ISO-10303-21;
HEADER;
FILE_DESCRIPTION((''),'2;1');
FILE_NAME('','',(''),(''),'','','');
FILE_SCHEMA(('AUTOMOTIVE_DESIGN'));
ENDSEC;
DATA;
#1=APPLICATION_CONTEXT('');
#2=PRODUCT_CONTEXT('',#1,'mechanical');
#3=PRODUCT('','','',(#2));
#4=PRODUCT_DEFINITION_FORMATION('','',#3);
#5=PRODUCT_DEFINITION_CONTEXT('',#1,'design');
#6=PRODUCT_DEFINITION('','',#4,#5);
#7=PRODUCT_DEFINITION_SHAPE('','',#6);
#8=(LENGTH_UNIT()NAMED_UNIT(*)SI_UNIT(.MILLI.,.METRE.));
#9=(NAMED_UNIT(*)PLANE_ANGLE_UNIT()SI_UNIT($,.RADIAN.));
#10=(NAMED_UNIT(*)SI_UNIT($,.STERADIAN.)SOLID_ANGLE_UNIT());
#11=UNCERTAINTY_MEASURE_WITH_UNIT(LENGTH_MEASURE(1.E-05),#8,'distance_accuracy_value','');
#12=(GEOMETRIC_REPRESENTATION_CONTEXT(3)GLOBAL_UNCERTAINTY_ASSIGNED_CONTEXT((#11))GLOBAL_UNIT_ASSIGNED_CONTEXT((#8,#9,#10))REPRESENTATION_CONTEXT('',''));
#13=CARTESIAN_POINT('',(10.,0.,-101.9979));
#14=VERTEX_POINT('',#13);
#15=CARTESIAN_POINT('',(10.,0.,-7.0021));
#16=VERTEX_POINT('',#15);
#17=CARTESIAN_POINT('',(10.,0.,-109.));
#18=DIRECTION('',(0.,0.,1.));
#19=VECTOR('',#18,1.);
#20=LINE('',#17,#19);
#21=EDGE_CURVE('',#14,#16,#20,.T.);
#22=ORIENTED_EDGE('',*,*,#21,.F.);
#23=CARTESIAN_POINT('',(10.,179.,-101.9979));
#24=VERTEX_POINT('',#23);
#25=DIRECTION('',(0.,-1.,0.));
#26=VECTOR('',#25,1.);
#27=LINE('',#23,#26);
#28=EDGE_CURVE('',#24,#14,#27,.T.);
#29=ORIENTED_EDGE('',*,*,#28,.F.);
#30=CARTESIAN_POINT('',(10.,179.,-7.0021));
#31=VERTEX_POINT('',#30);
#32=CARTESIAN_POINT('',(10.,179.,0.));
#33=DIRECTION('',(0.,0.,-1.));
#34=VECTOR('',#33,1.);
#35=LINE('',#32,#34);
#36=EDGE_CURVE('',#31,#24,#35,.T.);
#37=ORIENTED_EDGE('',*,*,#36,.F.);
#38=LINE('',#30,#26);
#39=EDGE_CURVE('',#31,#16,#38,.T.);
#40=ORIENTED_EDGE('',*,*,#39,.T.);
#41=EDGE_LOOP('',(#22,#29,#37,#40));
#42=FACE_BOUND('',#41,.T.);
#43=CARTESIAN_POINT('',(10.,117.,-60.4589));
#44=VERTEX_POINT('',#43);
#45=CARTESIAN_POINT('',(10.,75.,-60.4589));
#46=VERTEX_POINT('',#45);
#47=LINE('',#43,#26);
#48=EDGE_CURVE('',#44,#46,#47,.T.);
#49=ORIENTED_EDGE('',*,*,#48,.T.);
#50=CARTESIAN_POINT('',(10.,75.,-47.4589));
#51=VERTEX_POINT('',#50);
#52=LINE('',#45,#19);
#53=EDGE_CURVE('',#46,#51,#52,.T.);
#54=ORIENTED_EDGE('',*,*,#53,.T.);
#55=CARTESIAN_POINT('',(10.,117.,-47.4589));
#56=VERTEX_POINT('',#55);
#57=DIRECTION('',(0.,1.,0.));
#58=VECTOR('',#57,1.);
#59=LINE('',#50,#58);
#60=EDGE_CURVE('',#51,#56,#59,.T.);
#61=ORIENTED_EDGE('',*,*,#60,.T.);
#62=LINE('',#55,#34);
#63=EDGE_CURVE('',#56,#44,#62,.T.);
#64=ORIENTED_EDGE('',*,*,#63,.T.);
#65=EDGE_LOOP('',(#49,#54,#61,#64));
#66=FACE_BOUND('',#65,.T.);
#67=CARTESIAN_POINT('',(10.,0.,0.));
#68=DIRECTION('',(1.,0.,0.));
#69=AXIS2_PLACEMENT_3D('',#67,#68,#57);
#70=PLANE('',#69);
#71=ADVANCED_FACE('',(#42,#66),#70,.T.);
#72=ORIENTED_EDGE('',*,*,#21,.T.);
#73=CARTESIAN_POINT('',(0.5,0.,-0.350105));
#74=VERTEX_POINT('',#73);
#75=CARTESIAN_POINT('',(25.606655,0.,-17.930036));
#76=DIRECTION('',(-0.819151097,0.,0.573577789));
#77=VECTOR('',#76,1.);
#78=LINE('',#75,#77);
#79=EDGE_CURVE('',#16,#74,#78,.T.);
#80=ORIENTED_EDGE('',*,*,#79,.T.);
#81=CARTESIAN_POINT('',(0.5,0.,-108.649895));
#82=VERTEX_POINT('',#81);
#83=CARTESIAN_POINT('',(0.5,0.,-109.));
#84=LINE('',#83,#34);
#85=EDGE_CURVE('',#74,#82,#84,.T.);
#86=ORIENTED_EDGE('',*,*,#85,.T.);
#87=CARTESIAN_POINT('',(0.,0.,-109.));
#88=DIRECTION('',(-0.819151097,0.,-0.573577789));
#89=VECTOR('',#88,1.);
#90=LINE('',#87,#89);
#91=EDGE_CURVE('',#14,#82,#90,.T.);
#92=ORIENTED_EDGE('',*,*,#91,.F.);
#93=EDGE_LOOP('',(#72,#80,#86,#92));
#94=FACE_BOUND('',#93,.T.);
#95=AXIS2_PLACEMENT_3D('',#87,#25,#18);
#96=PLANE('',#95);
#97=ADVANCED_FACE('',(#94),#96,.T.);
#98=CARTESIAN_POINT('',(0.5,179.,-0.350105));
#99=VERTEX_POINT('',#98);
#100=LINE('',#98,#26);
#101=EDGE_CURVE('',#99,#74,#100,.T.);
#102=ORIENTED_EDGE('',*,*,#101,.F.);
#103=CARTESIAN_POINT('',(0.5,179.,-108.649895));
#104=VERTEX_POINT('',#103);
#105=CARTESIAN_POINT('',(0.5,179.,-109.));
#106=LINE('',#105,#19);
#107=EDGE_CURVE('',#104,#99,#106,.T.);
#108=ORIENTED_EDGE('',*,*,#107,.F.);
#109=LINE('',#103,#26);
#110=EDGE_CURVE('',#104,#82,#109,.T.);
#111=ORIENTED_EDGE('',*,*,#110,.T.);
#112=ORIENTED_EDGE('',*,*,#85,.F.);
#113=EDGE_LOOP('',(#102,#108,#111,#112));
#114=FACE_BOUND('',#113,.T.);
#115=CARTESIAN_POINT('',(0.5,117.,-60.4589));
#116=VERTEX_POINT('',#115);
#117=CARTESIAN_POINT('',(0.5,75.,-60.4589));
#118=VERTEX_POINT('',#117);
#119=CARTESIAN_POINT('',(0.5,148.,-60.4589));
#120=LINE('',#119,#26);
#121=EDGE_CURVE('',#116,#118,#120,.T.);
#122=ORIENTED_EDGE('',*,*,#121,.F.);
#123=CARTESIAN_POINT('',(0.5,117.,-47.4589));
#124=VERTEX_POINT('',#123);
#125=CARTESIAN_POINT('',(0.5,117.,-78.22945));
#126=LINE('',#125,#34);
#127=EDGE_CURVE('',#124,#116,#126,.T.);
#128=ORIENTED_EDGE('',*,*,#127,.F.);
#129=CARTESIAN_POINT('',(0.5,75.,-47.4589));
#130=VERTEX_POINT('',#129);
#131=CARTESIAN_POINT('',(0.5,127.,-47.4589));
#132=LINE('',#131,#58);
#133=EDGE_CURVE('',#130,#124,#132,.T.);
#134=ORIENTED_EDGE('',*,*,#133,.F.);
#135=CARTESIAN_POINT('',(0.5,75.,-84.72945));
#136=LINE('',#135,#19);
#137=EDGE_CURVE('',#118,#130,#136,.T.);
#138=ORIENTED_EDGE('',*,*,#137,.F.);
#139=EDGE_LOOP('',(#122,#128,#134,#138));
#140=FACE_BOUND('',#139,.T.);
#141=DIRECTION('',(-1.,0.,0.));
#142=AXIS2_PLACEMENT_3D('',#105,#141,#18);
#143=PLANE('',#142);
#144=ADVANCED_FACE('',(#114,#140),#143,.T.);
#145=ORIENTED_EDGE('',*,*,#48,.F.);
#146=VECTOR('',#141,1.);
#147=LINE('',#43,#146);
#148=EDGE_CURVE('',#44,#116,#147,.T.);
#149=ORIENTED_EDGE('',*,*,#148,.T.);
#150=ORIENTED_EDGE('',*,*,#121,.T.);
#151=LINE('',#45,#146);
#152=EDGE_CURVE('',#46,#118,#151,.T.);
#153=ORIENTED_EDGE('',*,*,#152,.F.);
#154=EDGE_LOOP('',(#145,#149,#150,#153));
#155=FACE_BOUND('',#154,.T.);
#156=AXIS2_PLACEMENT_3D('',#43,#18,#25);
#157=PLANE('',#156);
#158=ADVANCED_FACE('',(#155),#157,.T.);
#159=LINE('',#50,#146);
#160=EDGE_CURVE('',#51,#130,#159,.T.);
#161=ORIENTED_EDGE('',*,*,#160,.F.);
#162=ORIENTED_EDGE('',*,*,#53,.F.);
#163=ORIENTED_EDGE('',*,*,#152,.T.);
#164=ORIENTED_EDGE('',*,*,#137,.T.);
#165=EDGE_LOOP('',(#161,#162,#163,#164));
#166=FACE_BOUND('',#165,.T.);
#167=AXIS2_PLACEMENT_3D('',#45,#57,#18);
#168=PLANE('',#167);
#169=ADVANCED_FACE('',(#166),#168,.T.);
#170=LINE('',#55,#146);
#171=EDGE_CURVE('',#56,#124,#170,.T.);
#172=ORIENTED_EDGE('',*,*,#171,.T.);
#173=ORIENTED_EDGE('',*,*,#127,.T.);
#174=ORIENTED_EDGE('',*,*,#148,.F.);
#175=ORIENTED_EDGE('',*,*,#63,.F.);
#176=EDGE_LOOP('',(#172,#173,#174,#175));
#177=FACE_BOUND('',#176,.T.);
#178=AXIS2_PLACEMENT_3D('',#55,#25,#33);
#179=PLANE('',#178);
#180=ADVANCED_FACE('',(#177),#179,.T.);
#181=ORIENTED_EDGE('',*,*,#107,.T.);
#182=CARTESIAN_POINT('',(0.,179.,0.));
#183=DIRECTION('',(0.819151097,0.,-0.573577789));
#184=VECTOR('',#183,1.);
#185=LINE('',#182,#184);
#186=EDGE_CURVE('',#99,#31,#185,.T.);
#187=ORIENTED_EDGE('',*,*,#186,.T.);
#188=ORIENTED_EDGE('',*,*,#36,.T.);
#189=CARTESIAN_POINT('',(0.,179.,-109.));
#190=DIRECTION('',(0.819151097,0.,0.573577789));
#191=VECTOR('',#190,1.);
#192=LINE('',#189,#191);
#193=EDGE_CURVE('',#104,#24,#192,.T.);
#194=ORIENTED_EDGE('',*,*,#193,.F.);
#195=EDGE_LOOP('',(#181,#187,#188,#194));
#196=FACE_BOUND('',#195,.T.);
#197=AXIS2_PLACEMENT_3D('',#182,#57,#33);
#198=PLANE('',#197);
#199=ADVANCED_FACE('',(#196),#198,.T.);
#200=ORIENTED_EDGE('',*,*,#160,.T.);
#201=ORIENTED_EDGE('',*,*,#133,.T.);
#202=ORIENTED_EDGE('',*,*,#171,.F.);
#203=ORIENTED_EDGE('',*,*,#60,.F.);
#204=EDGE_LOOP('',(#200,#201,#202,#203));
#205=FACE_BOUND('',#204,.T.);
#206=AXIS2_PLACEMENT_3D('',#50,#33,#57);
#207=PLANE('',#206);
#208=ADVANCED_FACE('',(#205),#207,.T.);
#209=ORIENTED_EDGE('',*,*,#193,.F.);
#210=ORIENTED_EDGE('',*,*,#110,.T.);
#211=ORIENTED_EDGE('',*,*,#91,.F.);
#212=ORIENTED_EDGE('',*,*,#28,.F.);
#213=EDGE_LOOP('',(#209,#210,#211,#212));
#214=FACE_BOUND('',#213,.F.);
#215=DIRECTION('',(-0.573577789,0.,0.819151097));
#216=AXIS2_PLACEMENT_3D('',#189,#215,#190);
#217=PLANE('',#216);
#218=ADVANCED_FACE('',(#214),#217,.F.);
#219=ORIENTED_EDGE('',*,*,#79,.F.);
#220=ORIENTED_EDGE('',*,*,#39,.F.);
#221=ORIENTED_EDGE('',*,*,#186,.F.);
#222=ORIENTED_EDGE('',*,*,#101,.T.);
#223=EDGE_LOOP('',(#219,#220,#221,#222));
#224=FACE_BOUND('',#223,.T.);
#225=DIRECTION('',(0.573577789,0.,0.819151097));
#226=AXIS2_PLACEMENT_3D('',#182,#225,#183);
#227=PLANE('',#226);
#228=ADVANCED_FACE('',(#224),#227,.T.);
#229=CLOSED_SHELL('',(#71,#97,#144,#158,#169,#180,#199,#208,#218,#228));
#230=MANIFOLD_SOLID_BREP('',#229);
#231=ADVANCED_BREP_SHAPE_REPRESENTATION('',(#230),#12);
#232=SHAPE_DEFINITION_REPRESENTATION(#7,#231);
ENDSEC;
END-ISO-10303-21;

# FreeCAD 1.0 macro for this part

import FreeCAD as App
import Part
import Sketcher

V = App.Vector
Q = App.Units.Quantity

doc = App.newDocument("Part")
body = doc.addObject("PartDesign::Body", "Body")

# Sketch on YZ plane
sketch1 = body.newObject("Sketcher::SketchObject", "Sketch")
sketch1.AttachmentSupport = (doc.getObject("YZ_Plane"), [""])
sketch1.MapMode = "FlatFace"
sketch1.addGeometry([
    Part.LineSegment(V(179, 0, 0), V(0, 0, 0)),
    Part.LineSegment(V(0, 0, 0), V(0, -109, 0)),
    Part.LineSegment(V(0, -109, 0), V(179, -109, 0)),
    Part.LineSegment(V(179, -109, 0), V(179, 0, 0)),
], False)
sketch1.addConstraint([
    Sketcher.Constraint("Coincident", 0, 2, 1, 1),
    Sketcher.Constraint("Coincident", 1, 2, 2, 1),
    Sketcher.Constraint("Coincident", 2, 2, 3, 1),
    Sketcher.Constraint("Coincident", 3, 2, 0, 1),
    Sketcher.Constraint("Horizontal", 0),
    Sketcher.Constraint("Vertical", 1),
    Sketcher.Constraint("Horizontal", 2),
    Sketcher.Constraint("Vertical", 3),
    Sketcher.Constraint("Coincident", 0, 2, -1, 1),
    Sketcher.Constraint("DistanceX", 0, 2, 0, 1, 179.0),
    Sketcher.Constraint("DistanceY", 1, 2, 1, 1, 109.0),
])
pad1 = body.newObject("PartDesign::Pad", "Pad")
pad1.Profile = sketch1
pad1.Length = 10

# Sketch on XZ plane
sketch2 = body.newObject("Sketcher::SketchObject", "Sketch001")
sketch2.AttachmentSupport = (doc.getObject("XZ_Plane"), [""])
sketch2.MapMode = "FlatFace"
sketch2.AttachmentOffset = App.Placement(V(0, 0, -179), App.Rotation())
sketch2.addGeometry([
    Part.LineSegment(V(10, -7, 0), V(0, 0, 0)),
    Part.LineSegment(V(0, 0, 0), V(10, 0, 0)),
    Part.LineSegment(V(10, 0, 0), V(10, -7, 0)),
], False)
sketch2.addConstraint([
    Sketcher.Constraint("Coincident", 0, 2, 1, 1),
    Sketcher.Constraint("Coincident", 1, 2, 2, 1),
    Sketcher.Constraint("Coincident", 2, 2, 0, 1),
    Sketcher.Constraint("Horizontal", 1),
    Sketcher.Constraint("Vertical", 2),
    Sketcher.Constraint("Coincident", 0, 2, -1, 1),
    Sketcher.Constraint("DistanceX", 1, 1, 1, 2, 10.0),
    Sketcher.Constraint("Angle", 0, Q("145 deg")),
])
pocket1 = body.newObject("PartDesign::Pocket", "Pocket")
pocket1.Profile = sketch2
pocket1.Type = "ThroughAll"
pocket1.Reversed = True

# Sketch on XZ plane
sketch3 = body.newObject("Sketcher::SketchObject", "Sketch002")
sketch3.AttachmentSupport = (doc.getObject("XZ_Plane"), [""])
sketch3.MapMode = "FlatFace"
sketch3.AttachmentOffset = App.Placement(V(0, 0, -179), App.Rotation())
sketch3.addGeometry([
    Part.LineSegment(V(10, -109, 0), V(0, -109, 0)),
    Part.LineSegment(V(0, -109, 0), V(10, -102, 0)),
    Part.LineSegment(V(10, -102, 0), V(10, -109, 0)),
], False)
sketch3.addConstraint([
    Sketcher.Constraint("Coincident", 0, 2, 1, 1),
    Sketcher.Constraint("Coincident", 1, 2, 2, 1),
    Sketcher.Constraint("Coincident", 2, 2, 0, 1),
    Sketcher.Constraint("Horizontal", 0),
    Sketcher.Constraint("Vertical", 2),
    Sketcher.Constraint("PointOnObject", 0, 2, -2),
    Sketcher.Constraint("DistanceX", 0, 2, 0, 1, 10.0),
    Sketcher.Constraint("Angle", 1, Q("35 deg")),
    Sketcher.Constraint("DistanceY", 0, 2, -1, 1, 109.0),
])
pocket2 = body.newObject("PartDesign::Pocket", "Pocket001")
pocket2.Profile = sketch3
pocket2.Type = "ThroughAll"
pocket2.Reversed = True

# Sketch on YZ plane
sketch4 = body.newObject("Sketcher::SketchObject", "Sketch003")
sketch4.AttachmentSupport = (doc.getObject("YZ_Plane"), [""])
sketch4.MapMode = "FlatFace"
sketch4.AttachmentOffset = App.Placement(V(0, 0, 10), App.Rotation())
sketch4.addGeometry([
    Part.LineSegment(V(117, -60, 0), V(117, -47, 0)),
    Part.LineSegment(V(117, -47, 0), V(75, -47, 0)),
    Part.LineSegment(V(75, -47, 0), V(75, -60, 0)),
    Part.LineSegment(V(75, -60, 0), V(117, -60, 0)),
], False)
sketch4.addConstraint([
    Sketcher.Constraint("Coincident", 0, 2, 1, 1),
    Sketcher.Constraint("Coincident", 1, 2, 2, 1),
    Sketcher.Constraint("Coincident", 2, 2, 3, 1),
    Sketcher.Constraint("Coincident", 3, 2, 0, 1),
    Sketcher.Constraint("Vertical", 0),
    Sketcher.Constraint("Horizontal", 1),
    Sketcher.Constraint("Vertical", 2),
    Sketcher.Constraint("Horizontal", 3),
    Sketcher.Constraint("DistanceX", 1, 2, 1, 1, 42.0),
    Sketcher.Constraint("DistanceY", 0, 1, 0, 2, 13.0),
    Sketcher.Constraint("DistanceX", -1, 1, 0, 2, 117.0),
    Sketcher.Constraint("DistanceY", 0, 2, -1, 1, 47.459),
])
pocket3 = body.newObject("PartDesign::Pocket", "Pocket002")
pocket3.Profile = sketch4
pocket3.Type = "ThroughAll"

# Sketch on XZ plane
sketch5 = body.newObject("Sketcher::SketchObject", "Sketch004")
sketch5.AttachmentSupport = (doc.getObject("XZ_Plane"), [""])
sketch5.MapMode = "FlatFace"
sketch5.AttachmentOffset = App.Placement(V(0, 0, -179), App.Rotation())
sketch5.addGeometry([
    Part.LineSegment(V(0.5, -109, 0), V(0, -109, 0)),
    Part.LineSegment(V(0, -109, 0), V(0, 0, 0)),
    Part.LineSegment(V(0, 0, 0), V(0.5, 0, 0)),
    Part.LineSegment(V(0.5, 0, 0), V(0.5, -109, 0)),
], False)
sketch5.addConstraint([
    Sketcher.Constraint("Coincident", 0, 2, 1, 1),
    Sketcher.Constraint("Coincident", 1, 2, 2, 1),
    Sketcher.Constraint("Coincident", 2, 2, 3, 1),
    Sketcher.Constraint("Coincident", 3, 2, 0, 1),
    Sketcher.Constraint("Horizontal", 0),
    Sketcher.Constraint("Vertical", 1),
    Sketcher.Constraint("Horizontal", 2),
    Sketcher.Constraint("Vertical", 3),
    Sketcher.Constraint("Coincident", 1, 2, -1, 1),
    Sketcher.Constraint("DistanceX", 0, 2, 0, 1, 0.5),
    Sketcher.Constraint("DistanceY", 1, 1, 1, 2, 109.0),
])
pocket4 = body.newObject("PartDesign::Pocket", "Pocket003")
pocket4.Profile = sketch5
pocket4.Type = "ThroughAll"
pocket4.Reversed = True

doc.recompute()
